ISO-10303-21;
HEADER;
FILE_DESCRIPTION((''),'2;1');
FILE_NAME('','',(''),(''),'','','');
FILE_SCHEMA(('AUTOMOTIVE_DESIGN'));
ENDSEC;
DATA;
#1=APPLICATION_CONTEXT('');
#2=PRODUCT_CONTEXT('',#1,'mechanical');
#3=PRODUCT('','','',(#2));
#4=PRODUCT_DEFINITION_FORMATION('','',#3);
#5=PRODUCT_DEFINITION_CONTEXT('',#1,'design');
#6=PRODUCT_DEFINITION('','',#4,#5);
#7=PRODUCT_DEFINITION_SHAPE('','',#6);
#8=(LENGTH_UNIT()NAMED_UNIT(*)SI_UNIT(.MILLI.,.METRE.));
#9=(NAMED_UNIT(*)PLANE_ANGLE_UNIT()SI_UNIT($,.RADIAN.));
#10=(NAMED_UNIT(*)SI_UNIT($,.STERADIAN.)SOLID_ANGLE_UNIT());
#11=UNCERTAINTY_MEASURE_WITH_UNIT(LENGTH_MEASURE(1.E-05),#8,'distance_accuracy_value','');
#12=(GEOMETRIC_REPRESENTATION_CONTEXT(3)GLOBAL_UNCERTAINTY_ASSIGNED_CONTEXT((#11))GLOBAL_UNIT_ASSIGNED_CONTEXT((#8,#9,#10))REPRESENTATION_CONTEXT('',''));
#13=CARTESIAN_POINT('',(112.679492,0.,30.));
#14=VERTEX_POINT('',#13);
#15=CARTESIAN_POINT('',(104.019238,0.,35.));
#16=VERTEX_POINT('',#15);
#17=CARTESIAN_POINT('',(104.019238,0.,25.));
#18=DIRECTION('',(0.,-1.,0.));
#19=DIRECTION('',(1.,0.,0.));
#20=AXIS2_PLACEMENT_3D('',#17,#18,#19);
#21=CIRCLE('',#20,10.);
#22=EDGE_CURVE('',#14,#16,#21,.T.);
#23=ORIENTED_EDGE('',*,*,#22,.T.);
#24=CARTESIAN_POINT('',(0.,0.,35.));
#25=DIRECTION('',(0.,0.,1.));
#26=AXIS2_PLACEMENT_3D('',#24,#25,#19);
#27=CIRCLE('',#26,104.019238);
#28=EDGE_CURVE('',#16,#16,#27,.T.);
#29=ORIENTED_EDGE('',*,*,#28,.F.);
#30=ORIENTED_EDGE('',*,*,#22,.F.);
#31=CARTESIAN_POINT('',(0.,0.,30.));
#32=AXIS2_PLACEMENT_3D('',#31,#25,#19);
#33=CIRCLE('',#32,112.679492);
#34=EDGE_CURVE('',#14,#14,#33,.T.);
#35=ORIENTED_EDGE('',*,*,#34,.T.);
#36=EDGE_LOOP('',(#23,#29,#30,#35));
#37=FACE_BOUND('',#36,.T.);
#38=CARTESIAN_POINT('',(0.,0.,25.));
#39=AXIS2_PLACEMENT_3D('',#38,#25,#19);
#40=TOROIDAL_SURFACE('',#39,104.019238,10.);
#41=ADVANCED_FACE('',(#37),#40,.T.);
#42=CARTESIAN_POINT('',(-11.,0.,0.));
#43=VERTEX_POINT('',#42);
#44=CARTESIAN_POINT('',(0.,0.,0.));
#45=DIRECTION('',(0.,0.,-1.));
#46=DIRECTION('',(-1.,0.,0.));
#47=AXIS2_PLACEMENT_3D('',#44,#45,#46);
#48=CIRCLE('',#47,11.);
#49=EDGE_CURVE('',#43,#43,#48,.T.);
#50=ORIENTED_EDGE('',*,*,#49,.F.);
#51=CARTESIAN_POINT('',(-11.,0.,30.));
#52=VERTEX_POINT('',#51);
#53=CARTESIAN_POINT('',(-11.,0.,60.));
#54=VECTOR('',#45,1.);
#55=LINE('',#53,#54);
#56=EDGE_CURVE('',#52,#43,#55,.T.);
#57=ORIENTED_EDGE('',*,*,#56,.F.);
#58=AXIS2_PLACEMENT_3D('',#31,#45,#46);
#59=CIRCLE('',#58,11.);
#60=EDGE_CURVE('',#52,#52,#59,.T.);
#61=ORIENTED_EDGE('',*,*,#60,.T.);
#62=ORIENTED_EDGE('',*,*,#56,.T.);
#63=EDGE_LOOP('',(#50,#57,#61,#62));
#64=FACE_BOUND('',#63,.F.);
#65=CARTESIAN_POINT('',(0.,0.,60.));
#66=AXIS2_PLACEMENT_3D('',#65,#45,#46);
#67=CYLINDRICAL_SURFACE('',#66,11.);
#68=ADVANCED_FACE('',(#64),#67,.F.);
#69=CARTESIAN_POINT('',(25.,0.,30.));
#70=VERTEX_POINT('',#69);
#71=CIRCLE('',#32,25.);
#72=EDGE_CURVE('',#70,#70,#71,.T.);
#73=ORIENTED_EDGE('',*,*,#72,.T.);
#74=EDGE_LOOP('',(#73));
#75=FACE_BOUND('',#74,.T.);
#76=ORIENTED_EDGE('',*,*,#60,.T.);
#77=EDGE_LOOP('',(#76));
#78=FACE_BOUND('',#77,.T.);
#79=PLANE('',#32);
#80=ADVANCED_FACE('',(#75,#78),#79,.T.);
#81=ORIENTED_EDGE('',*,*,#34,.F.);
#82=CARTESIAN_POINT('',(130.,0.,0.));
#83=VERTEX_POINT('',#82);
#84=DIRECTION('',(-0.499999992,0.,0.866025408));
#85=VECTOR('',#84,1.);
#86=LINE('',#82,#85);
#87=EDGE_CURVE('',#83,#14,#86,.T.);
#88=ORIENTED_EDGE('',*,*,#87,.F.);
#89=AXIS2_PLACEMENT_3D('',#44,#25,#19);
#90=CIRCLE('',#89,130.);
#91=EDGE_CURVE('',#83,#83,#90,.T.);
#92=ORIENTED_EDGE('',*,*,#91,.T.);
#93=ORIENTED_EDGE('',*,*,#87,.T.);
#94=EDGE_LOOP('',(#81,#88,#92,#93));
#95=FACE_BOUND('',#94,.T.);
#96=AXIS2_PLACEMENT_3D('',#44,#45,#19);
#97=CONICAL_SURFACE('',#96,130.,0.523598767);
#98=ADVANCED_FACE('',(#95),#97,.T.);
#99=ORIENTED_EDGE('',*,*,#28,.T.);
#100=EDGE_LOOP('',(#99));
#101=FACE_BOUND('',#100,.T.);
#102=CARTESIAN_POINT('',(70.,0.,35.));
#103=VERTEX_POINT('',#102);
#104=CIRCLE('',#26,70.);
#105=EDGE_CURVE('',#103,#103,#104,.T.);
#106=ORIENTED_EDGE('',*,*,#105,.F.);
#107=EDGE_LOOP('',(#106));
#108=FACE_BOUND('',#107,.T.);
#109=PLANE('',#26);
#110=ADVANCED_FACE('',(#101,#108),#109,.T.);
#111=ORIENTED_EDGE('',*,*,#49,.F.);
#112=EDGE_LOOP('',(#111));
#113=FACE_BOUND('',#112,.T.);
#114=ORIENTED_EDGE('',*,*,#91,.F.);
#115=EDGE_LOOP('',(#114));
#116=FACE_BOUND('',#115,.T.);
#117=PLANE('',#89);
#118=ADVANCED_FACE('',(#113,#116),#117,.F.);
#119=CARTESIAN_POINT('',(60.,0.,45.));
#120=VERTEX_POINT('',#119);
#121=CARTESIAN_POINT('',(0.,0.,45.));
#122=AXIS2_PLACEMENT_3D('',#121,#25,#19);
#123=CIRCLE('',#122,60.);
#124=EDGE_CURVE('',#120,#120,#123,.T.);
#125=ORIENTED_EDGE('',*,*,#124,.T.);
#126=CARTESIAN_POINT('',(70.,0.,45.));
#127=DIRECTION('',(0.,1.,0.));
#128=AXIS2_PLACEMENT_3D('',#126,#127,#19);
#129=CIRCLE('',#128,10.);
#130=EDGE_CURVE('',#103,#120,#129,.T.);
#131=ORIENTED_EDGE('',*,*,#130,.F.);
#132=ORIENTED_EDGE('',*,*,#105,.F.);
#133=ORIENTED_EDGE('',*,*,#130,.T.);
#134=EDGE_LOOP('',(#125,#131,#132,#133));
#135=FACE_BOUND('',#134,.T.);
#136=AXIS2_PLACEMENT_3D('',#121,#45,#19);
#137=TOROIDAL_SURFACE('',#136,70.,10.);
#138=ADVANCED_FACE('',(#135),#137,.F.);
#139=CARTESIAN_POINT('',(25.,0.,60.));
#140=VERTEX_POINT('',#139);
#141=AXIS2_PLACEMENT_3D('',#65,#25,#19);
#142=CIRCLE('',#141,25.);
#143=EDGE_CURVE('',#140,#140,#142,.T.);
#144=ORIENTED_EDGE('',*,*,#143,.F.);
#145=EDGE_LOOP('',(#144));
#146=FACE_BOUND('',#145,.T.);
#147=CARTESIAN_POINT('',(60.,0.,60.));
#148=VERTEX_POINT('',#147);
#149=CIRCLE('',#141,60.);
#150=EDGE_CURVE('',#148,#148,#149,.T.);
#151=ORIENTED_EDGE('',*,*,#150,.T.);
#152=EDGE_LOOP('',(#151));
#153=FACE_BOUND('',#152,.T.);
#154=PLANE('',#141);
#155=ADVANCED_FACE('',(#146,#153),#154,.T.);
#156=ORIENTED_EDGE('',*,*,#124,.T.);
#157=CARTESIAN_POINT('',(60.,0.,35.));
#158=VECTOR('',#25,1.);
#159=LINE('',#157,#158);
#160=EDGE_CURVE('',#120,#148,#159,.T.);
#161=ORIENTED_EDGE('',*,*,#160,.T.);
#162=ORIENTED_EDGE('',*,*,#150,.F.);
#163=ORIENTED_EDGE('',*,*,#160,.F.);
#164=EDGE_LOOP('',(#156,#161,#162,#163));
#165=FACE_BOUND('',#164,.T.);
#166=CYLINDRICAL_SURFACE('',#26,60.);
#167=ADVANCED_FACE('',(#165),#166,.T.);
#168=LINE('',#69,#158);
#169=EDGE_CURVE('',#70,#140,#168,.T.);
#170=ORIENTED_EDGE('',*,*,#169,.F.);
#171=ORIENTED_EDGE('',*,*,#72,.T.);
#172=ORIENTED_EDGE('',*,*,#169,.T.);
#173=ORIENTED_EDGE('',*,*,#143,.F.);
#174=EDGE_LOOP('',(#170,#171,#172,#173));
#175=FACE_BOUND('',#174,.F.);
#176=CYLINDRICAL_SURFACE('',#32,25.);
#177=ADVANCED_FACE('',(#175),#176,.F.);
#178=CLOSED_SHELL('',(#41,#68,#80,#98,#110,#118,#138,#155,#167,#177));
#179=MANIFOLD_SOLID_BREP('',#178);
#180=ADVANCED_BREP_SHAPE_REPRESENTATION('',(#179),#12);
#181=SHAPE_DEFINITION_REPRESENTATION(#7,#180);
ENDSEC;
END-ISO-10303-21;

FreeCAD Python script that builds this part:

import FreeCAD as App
import Part
import Sketcher
from FreeCAD import Vector
Q = App.Units.Quantity


def edges_at(feature, points):
    """Names of the edges that pass closest to the given points."""
    edges = feature.Shape.Edges
    near = lambda p: min(range(len(edges)), key=lambda i: edges[i].distToShape(Part.Vertex(*p))[0])
    return sorted({f"Edge{near(p) + 1}" for p in points})


def add_polygon(sketch, points):
    """Adds a closed chain of lines whose ends are joined by coincident constraints."""
    first, n = sketch.GeometryCount, len(points)
    for a, b in zip(points, points[1:] + points[:1]):
        sketch.addGeometry(Part.LineSegment(App.Vector(*a, 0), App.Vector(*b, 0)), False)
    for i in range(n):
        sketch.addConstraint(Sketcher.Constraint("Coincident", first + i, 2, first + (i + 1) % n, 1))

doc = App.newDocument("Part")
body = doc.addObject("PartDesign::Body", "Body")

# Sketch on XZ plane
sketch1 = body.newObject("Sketcher::SketchObject", "Sketch")
sketch1.AttachmentSupport = (doc.getObject("XZ_Plane"), [""])
sketch1.MapMode = "FlatFace"
add_polygon(sketch1, [(0, 60), (0, 0), (130, 0), (110, 35), (60, 35), (60, 60)])  # lines 0-5
sketch1.addConstraint([
    Sketcher.Constraint("Vertical", 0),
    Sketcher.Constraint("Horizontal", 1),
    Sketcher.Constraint("Horizontal", 3),
    Sketcher.Constraint("Vertical", 4),
    Sketcher.Constraint("Horizontal", 5),
    Sketcher.Constraint("Coincident", 0, 2, -1, 1),
    Sketcher.Constraint("Equal", 5, 0),
    Sketcher.Constraint("DistanceX", 1, 1, 1, 2, 130.0),
    Sketcher.Constraint("DistanceX", 5, 2, 5, 1, 60.0),
    Sketcher.Constraint("DistanceY", 4, 1, 4, 2, 25.0),
    Sketcher.Constraint("Angle", 2, Q("119.999999 deg")),
])
revolution = body.newObject("PartDesign::Revolution", "Revolution")
revolution.Profile = sketch1
revolution.ReferenceAxis = (sketch1, ["V_Axis"])
revolution.Angle = 360

# Sketch on XY plane
sketch2 = body.newObject("Sketcher::SketchObject", "Sketch001")
sketch2.AttachmentSupport = (doc.getObject("XY_Plane"), [""])
sketch2.MapMode = "FlatFace"
sketch2.AttachmentOffset = App.Placement(Vector(0, 0, 60), App.Rotation())
sketch2.addGeometry(Part.Circle(Vector(0, 0, 0), Vector(0, 0, 1), 11), False)
sketch2.addConstraint([
    Sketcher.Constraint("Coincident", 0, 3, -1, 1),
    Sketcher.Constraint("Diameter", 0, 22.0),
])
doc.recompute()
hole = body.newObject("PartDesign::Hole", "Hole")
hole.Profile = sketch2
hole.ThreadType = "None"
hole.Diameter = 22
hole.DepthType = "ThroughAll"
hole.HoleCutType = "Counterbore"
hole.HoleCutDiameter = 50
hole.HoleCutDepth = 30
doc.recompute()

fillet = body.newObject("PartDesign::Fillet", "Fillet")
fillet.Base = (hole, edges_at(hole, [(-60, 0, 35), (-109.793, 0, 35)]))
fillet.Radius = 10

doc.recompute()
